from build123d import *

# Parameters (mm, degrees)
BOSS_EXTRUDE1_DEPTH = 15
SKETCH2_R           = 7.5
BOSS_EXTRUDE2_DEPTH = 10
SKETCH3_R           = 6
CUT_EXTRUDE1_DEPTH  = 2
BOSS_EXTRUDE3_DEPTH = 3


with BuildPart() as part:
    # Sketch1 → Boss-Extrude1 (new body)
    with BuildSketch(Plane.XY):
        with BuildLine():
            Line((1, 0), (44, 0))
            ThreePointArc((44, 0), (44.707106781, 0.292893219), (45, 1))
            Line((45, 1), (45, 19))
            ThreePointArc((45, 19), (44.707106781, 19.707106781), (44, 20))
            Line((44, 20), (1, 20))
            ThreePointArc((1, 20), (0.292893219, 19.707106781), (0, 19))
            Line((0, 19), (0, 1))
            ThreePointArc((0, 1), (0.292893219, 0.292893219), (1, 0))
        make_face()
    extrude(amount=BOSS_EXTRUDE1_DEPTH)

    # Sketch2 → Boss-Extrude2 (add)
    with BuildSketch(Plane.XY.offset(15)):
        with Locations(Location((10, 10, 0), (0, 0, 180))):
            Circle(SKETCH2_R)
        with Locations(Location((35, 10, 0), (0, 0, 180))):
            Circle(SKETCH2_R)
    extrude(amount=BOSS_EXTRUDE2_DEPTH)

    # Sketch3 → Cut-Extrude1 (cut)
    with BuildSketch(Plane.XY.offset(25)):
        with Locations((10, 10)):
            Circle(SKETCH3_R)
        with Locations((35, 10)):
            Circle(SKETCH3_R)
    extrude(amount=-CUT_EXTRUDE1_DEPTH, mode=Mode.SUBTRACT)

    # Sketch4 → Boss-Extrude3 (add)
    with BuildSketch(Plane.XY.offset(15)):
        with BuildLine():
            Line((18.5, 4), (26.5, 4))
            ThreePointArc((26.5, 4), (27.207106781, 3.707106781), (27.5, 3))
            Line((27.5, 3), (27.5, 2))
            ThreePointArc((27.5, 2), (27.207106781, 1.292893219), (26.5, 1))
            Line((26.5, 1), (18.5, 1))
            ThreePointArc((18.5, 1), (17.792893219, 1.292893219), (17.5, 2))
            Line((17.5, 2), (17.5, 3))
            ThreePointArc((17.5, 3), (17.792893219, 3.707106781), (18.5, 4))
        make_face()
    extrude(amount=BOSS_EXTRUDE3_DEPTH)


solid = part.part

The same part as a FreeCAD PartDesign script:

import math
import FreeCAD as App
import Part
import Sketcher
Q = App.Units.Quantity

doc = App.newDocument("Part")
body = doc.addObject("PartDesign::Body", "Body")

# Sketch on XY plane
sketch1 = body.newObject("Sketcher::SketchObject", "Sketch")
sketch1.AttachmentSupport = (doc.getObject("XY_Plane"), [""])
sketch1.MapMode = "FlatFace"
sketch1.addGeometry(Part.LineSegment(App.Vector(1, 0, 0), App.Vector(44, 0, 0)), False)
sketch1.addGeometry(Part.ArcOfCircle(Part.Circle(App.Vector(44, 1, 0), App.Vector(0, 0, 1), 1), math.radians(-90), math.radians(0)), False)
sketch1.addGeometry(Part.LineSegment(App.Vector(45, 1, 0), App.Vector(45, 19, 0)), False)
sketch1.addGeometry(Part.ArcOfCircle(Part.Circle(App.Vector(44, 19, 0), App.Vector(0, 0, 1), 1), math.radians(0), math.radians(90)), False)
sketch1.addGeometry(Part.LineSegment(App.Vector(44, 20, 0), App.Vector(1, 20, 0)), False)
sketch1.addGeometry(Part.ArcOfCircle(Part.Circle(App.Vector(1, 19, 0), App.Vector(0, 0, 1), 1), math.radians(90), math.radians(180)), False)
sketch1.addGeometry(Part.LineSegment(App.Vector(0, 19, 0), App.Vector(0, 1, 0)), False)
sketch1.addGeometry(Part.ArcOfCircle(Part.Circle(App.Vector(1, 1, 0), App.Vector(0, 0, 1), 1), math.radians(-180), math.radians(-90)), False)
sketch1.addConstraint(Sketcher.Constraint("Tangent", 0, 2, 1, 1))
sketch1.addConstraint(Sketcher.Constraint("Tangent", 1, 2, 2, 1))
sketch1.addConstraint(Sketcher.Constraint("Tangent", 2, 2, 3, 1))
sketch1.addConstraint(Sketcher.Constraint("Tangent", 3, 2, 4, 1))
sketch1.addConstraint(Sketcher.Constraint("Tangent", 4, 2, 5, 1))
sketch1.addConstraint(Sketcher.Constraint("Tangent", 5, 2, 6, 1))
sketch1.addConstraint(Sketcher.Constraint("Tangent", 6, 2, 7, 1))
sketch1.addConstraint(Sketcher.Constraint("Tangent", 7, 2, 0, 1))
sketch1.addConstraint(Sketcher.Constraint("Horizontal", 0))
sketch1.addConstraint(Sketcher.Constraint("Vertical", 2))
sketch1.addConstraint(Sketcher.Constraint("Horizontal", 4))
sketch1.addConstraint(Sketcher.Constraint("Vertical", 6))
sketch1.addConstraint(Sketcher.Constraint("Equal", 1, 3))
sketch1.addConstraint(Sketcher.Constraint("Equal", 3, 5))
sketch1.addConstraint(Sketcher.Constraint("Equal", 5, 7))
sketch1.addConstraint(Sketcher.Constraint("PointOnObject", 0, 2, -1))
sketch1.addConstraint(Sketcher.Constraint("PointOnObject", 5, 2, -2))
sketch1.addConstraint(Sketcher.Constraint("Radius", 1, Q("1 mm")))
sketch1.addConstraint(Sketcher.Constraint("DistanceX", 0, 1, 0, 2, Q("43 mm")))
sketch1.addConstraint(Sketcher.Constraint("DistanceY", 2, 1, 2, 2, Q("18 mm")))
pad1 = body.newObject("PartDesign::Pad", "Pad")
pad1.Profile = sketch1
pad1.Length = 15

# Sketch on XY plane
sketch2 = body.newObject("Sketcher::SketchObject", "Sketch001")
sketch2.AttachmentSupport = (doc.getObject("XY_Plane"), [""])
sketch2.MapMode = "FlatFace"
sketch2.AttachmentOffset = App.Placement(App.Vector(0, 0, 15), App.Rotation())
sketch2.addGeometry(Part.Circle(App.Vector(10, 10, 0), App.Vector(0, 0, 1), 7.5), False)
sketch2.addGeometry(Part.Circle(App.Vector(35, 10, 0), App.Vector(0, 0, 1), 7.5), False)
sketch2.addConstraint(Sketcher.Constraint("Equal", 0, 1))
sketch2.addConstraint(Sketcher.Constraint("Horizontal", 0, 3, 1, 3))
sketch2.addConstraint(Sketcher.Constraint("Diameter", 0, Q("15 mm")))
sketch2.addConstraint(Sketcher.Constraint("DistanceX", -1, 1, 0, 3, Q("10 mm")))
sketch2.addConstraint(Sketcher.Constraint("DistanceY", -1, 1, 0, 3, Q("10 mm")))
sketch2.addConstraint(Sketcher.Constraint("DistanceX", -1, 1, 1, 3, Q("35 mm")))
pad2 = body.newObject("PartDesign::Pad", "Pad001")
pad2.Profile = sketch2
pad2.Length = 10

# Sketch on XY plane
sketch3 = body.newObject("Sketcher::SketchObject", "Sketch002")
sketch3.AttachmentSupport = (doc.getObject("XY_Plane"), [""])
sketch3.MapMode = "FlatFace"
sketch3.AttachmentOffset = App.Placement(App.Vector(0, 0, 25), App.Rotation())
sketch3.addGeometry(Part.Circle(App.Vector(10, 10, 0), App.Vector(0, 0, 1), 6), False)
sketch3.addGeometry(Part.Circle(App.Vector(35, 10, 0), App.Vector(0, 0, 1), 6), False)
sketch3.addConstraint(Sketcher.Constraint("Equal", 0, 1))
sketch3.addConstraint(Sketcher.Constraint("Horizontal", 0, 3, 1, 3))
sketch3.addConstraint(Sketcher.Constraint("Diameter", 0, Q("12 mm")))
sketch3.addConstraint(Sketcher.Constraint("DistanceX", -1, 1, 0, 3, Q("10 mm")))
sketch3.addConstraint(Sketcher.Constraint("DistanceY", -1, 1, 0, 3, Q("10 mm")))
sketch3.addConstraint(Sketcher.Constraint("DistanceX", -1, 1, 1, 3, Q("35 mm")))
pocket1 = body.newObject("PartDesign::Pocket", "Pocket")
pocket1.Profile = sketch3
pocket1.Length = 2

# Sketch on XY plane
sketch4 = body.newObject("Sketcher::SketchObject", "Sketch003")
sketch4.AttachmentSupport = (doc.getObject("XY_Plane"), [""])
sketch4.MapMode = "FlatFace"
sketch4.AttachmentOffset = App.Placement(App.Vector(0, 0, 15), App.Rotation())
sketch4.addGeometry(Part.LineSegment(App.Vector(26.5, 4, 0), App.Vector(18.5, 4, 0)), False)
sketch4.addGeometry(Part.ArcOfCircle(Part.Circle(App.Vector(18.5, 3, 0), App.Vector(0, 0, 1), 1), math.radians(90), math.radians(180)), False)
sketch4.addGeometry(Part.LineSegment(App.Vector(17.5, 3, 0), App.Vector(17.5, 2, 0)), False)
sketch4.addGeometry(Part.ArcOfCircle(Part.Circle(App.Vector(18.5, 2, 0), App.Vector(0, 0, 1), 1), math.radians(-180), math.radians(-90)), False)
sketch4.addGeometry(Part.LineSegment(App.Vector(18.5, 1, 0), App.Vector(26.5, 1, 0)), False)
sketch4.addGeometry(Part.ArcOfCircle(Part.Circle(App.Vector(26.5, 2, 0), App.Vector(0, 0, 1), 1), math.radians(-90), math.radians(0)), False)
sketch4.addGeometry(Part.LineSegment(App.Vector(27.5, 2, 0), App.Vector(27.5, 3, 0)), False)
sketch4.addGeometry(Part.ArcOfCircle(Part.Circle(App.Vector(26.5, 3, 0), App.Vector(0, 0, 1), 1), math.radians(0), math.radians(90)), False)
sketch4.addConstraint(Sketcher.Constraint("Tangent", 0, 2, 1, 1))
sketch4.addConstraint(Sketcher.Constraint("Tangent", 1, 2, 2, 1))
sketch4.addConstraint(Sketcher.Constraint("Tangent", 2, 2, 3, 1))
sketch4.addConstraint(Sketcher.Constraint("Tangent", 3, 2, 4, 1))
sketch4.addConstraint(Sketcher.Constraint("Tangent", 4, 2, 5, 1))
sketch4.addConstraint(Sketcher.Constraint("Tangent", 5, 2, 6, 1))
sketch4.addConstraint(Sketcher.Constraint("Tangent", 6, 2, 7, 1))
sketch4.addConstraint(Sketcher.Constraint("Tangent", 7, 2, 0, 1))
sketch4.addConstraint(Sketcher.Constraint("Horizontal", 0))
sketch4.addConstraint(Sketcher.Constraint("Vertical", 2))
sketch4.addConstraint(Sketcher.Constraint("Horizontal", 4))
sketch4.addConstraint(Sketcher.Constraint("Vertical", 6))
sketch4.addConstraint(Sketcher.Constraint("Equal", 1, 3))
sketch4.addConstraint(Sketcher.Constraint("Equal", 3, 5))
sketch4.addConstraint(Sketcher.Constraint("Equal", 5, 7))
sketch4.addConstraint(Sketcher.Constraint("Radius", 1, Q("1 mm")))
sketch4.addConstraint(Sketcher.Constraint("DistanceX", 0, 2, 0, 1, Q("8 mm")))
sketch4.addConstraint(Sketcher.Constraint("DistanceY", 2, 2, 2, 1, Q("1 mm")))
sketch4.addConstraint(Sketcher.Constraint("DistanceY", -1, 1, 1, 3, Q("3 mm")))
sketch4.addConstraint(Sketcher.Constraint("DistanceX", -1, 1, 1, 3, Q("18.5 mm")))
pad3 = body.newObject("PartDesign::Pad", "Pad002")
pad3.Profile = sketch4
pad3.Length = 3

doc.recompute()
